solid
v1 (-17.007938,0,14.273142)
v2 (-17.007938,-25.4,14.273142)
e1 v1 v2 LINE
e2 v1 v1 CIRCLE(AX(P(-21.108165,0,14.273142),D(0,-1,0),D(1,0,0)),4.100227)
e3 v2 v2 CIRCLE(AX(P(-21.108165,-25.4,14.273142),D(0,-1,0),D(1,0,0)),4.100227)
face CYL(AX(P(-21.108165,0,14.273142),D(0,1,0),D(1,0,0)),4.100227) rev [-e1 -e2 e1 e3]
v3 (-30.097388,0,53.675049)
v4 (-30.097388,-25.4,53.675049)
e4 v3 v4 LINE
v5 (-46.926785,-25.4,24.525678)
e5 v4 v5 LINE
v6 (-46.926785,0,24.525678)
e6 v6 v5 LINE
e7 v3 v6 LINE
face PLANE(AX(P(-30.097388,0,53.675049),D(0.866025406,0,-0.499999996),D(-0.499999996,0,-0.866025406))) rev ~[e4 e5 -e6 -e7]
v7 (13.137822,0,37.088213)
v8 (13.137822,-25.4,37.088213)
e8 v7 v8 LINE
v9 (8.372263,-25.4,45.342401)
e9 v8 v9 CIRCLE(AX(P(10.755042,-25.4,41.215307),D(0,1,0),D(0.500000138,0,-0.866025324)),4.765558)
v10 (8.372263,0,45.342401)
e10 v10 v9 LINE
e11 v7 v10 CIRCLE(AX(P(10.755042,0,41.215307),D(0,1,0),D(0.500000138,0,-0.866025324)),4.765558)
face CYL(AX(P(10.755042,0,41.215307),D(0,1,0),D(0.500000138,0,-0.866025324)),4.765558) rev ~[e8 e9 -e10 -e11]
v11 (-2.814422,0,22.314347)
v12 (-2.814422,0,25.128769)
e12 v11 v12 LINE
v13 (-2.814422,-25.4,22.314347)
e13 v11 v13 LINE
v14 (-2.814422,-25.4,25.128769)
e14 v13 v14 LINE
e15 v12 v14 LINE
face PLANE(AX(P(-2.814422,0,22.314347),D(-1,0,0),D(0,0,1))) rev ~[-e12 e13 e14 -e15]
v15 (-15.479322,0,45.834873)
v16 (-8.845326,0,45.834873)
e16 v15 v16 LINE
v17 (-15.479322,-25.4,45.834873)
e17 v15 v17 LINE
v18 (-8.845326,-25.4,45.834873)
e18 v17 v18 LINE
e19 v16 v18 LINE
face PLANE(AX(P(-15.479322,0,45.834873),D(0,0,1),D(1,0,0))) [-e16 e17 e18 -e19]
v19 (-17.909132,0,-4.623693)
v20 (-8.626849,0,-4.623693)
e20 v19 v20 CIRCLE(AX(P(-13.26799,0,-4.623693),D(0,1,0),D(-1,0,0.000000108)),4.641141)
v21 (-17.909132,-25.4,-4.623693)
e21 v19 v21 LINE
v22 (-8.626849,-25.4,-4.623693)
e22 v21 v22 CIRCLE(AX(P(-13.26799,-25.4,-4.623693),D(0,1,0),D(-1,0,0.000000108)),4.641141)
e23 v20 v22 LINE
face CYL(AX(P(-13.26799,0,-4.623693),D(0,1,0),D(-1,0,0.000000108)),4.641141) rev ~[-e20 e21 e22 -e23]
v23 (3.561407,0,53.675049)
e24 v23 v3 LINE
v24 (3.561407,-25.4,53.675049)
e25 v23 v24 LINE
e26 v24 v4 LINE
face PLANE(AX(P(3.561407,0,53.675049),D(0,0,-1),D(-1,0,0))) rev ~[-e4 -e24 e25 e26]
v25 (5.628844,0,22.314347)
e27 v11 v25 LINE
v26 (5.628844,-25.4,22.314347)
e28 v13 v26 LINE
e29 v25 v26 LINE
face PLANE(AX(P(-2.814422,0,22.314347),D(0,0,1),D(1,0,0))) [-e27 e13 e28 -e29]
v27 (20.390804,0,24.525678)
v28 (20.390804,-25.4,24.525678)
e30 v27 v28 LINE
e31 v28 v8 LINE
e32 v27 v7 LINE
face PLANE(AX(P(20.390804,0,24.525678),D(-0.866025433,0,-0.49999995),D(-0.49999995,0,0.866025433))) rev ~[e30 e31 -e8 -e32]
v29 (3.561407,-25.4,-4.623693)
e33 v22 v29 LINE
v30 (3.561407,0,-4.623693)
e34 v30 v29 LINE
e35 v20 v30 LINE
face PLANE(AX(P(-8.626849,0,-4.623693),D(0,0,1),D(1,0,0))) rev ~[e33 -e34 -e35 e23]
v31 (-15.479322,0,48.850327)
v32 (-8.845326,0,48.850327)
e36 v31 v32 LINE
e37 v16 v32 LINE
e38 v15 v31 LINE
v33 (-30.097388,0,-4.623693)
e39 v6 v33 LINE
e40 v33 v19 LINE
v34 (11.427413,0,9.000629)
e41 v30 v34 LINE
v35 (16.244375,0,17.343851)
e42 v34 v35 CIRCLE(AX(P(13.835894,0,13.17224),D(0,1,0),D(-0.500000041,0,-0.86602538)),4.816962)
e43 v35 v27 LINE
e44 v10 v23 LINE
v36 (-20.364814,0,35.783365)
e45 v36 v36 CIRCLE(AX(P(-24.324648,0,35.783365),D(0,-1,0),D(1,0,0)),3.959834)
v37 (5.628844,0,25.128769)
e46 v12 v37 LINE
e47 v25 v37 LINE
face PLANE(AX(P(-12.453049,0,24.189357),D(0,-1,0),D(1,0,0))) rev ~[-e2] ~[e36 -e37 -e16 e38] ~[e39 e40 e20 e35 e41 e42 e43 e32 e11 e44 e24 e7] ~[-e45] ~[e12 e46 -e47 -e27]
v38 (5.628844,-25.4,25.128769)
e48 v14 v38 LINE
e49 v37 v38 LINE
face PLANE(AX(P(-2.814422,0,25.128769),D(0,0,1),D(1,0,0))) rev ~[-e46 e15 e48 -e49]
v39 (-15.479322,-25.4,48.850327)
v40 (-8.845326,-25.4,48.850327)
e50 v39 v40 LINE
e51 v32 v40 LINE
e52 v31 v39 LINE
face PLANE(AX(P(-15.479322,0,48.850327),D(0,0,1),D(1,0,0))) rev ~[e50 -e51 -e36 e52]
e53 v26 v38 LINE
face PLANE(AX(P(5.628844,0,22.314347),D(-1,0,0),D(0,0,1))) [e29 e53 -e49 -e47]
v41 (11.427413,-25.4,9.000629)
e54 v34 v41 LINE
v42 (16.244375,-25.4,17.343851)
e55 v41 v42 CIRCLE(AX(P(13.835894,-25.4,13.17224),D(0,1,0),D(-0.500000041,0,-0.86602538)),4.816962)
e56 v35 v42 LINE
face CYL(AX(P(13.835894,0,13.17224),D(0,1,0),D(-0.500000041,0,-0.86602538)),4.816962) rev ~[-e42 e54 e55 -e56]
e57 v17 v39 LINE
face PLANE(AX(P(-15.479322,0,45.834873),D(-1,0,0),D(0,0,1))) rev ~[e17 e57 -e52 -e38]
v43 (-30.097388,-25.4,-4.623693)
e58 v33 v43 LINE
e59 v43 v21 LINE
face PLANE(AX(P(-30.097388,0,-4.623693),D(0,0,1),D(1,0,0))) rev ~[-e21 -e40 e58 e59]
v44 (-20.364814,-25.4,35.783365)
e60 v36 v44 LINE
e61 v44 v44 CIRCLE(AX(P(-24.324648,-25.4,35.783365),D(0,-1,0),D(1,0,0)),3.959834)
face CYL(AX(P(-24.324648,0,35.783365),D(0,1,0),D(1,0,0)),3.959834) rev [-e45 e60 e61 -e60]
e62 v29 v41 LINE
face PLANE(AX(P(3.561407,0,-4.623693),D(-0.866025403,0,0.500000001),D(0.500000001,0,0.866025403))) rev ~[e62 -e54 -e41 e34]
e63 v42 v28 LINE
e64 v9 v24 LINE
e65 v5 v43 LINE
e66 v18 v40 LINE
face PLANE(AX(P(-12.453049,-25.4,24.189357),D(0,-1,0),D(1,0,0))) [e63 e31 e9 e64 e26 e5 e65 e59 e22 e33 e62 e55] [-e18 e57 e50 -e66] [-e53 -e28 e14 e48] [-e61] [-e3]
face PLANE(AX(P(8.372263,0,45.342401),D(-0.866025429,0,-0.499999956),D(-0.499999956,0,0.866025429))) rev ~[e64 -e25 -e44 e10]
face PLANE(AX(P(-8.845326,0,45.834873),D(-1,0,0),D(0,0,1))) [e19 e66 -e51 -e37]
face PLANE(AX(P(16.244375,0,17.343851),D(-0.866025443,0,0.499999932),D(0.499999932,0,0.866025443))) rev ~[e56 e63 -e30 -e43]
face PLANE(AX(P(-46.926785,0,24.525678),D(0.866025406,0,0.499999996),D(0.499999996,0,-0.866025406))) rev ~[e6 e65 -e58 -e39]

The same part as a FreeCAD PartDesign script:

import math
import FreeCAD as App
import Part
import Sketcher
from FreeCAD import Vector
Q = App.Units.Quantity

doc = App.newDocument("Part")
params = doc.addObject("Spreadsheet::Sheet", "Params")
for row, (alias, value) in enumerate([
    ("pad1_length", "1 in"),
], start=1):
    params.set(f"A{row}", alias)
    params.set(f"B{row}", "=" + value)
    params.setAlias(f"B{row}", alias)

body = doc.addObject("PartDesign::Body", "Body")

# Sketch on XZ plane
sketch1 = body.newObject("Sketcher::SketchObject", "Sketch")
sketch1.AttachmentSupport = (doc.getObject("XZ_Plane"), [""])
sketch1.MapMode = "FlatFace"
sketch1.addGeometry(Part.LineSegment(Vector(-8.6, -4.6, 0), Vector(3.6, -4.6, 0)), False)
sketch1.addGeometry(Part.LineSegment(Vector(3.6, -4.6, 0), Vector(11.4, 9, 0)), False)
sketch1.addGeometry(Part.ArcOfCircle(Part.Circle(Vector(13.8, 13.2, 0), Vector(0, 0, 1), 4.8), math.radians(60), math.radians(240)), False)
sketch1.addGeometry(Part.LineSegment(Vector(16.2, 17.3, 0), Vector(20.4, 24.5, 0)), False)
sketch1.addGeometry(Part.LineSegment(Vector(20.4, 24.5, 0), Vector(13.1, 37.1, 0)), False)
sketch1.addGeometry(Part.ArcOfCircle(Part.Circle(Vector(10.8, 41.2, 0), Vector(0, 0, 1), 4.8), math.radians(120), math.radians(300)), False)
sketch1.addGeometry(Part.LineSegment(Vector(8.4, 45.3, 0), Vector(3.6, 53.7, 0)), False)
sketch1.addGeometry(Part.LineSegment(Vector(3.6, 53.7, 0), Vector(-30.1, 53.7, 0)), False)
sketch1.addGeometry(Part.LineSegment(Vector(-30.1, 53.7, 0), Vector(-46.9, 24.5, 0)), False)
sketch1.addGeometry(Part.LineSegment(Vector(-46.9, 24.5, 0), Vector(-30.1, -4.6, 0)), False)
sketch1.addGeometry(Part.LineSegment(Vector(-30.1, -4.6, 0), Vector(-17.9, -4.6, 0)), False)
sketch1.addGeometry(Part.ArcOfCircle(Part.Circle(Vector(-13.3, -4.6, 0), Vector(0, 0, 1), 4.6), math.radians(0), math.radians(180)), False)
sketch1.addGeometry(Part.Circle(Vector(-21.1, 14.3, 0), Vector(0, 0, 1), 4.1), False)
sketch1.addGeometry(Part.LineSegment(Vector(5.6, 22.3, 0), Vector(-2.8, 22.3, 0)), False)
sketch1.addGeometry(Part.LineSegment(Vector(-2.8, 22.3, 0), Vector(-2.8, 25.1, 0)), False)
sketch1.addGeometry(Part.LineSegment(Vector(-2.8, 25.1, 0), Vector(5.6, 25.1, 0)), False)
sketch1.addGeometry(Part.LineSegment(Vector(5.6, 25.1, 0), Vector(5.6, 22.3, 0)), False)
sketch1.addGeometry(Part.Circle(Vector(-24.3, 35.8, 0), Vector(0, 0, 1), 4), False)
sketch1.addGeometry(Part.LineSegment(Vector(-8.8, 45.8, 0), Vector(-15.5, 45.8, 0)), False)
sketch1.addGeometry(Part.LineSegment(Vector(-15.5, 45.8, 0), Vector(-15.5, 48.9, 0)), False)
sketch1.addGeometry(Part.LineSegment(Vector(-15.5, 48.9, 0), Vector(-8.8, 48.9, 0)), False)
sketch1.addGeometry(Part.LineSegment(Vector(-8.8, 48.9, 0), Vector(-8.8, 45.8, 0)), False)
sketch1.addConstraint(Sketcher.Constraint("Coincident", 0, 2, 1, 1))
sketch1.addConstraint(Sketcher.Constraint("Coincident", 1, 2, 2, 2))
sketch1.addConstraint(Sketcher.Constraint("Coincident", 2, 1, 3, 1))
sketch1.addConstraint(Sketcher.Constraint("Coincident", 3, 2, 4, 1))
sketch1.addConstraint(Sketcher.Constraint("Coincident", 4, 2, 5, 2))
sketch1.addConstraint(Sketcher.Constraint("Coincident", 5, 1, 6, 1))
sketch1.addConstraint(Sketcher.Constraint("Coincident", 6, 2, 7, 1))
sketch1.addConstraint(Sketcher.Constraint("Coincident", 7, 2, 8, 1))
sketch1.addConstraint(Sketcher.Constraint("Coincident", 8, 2, 9, 1))
sketch1.addConstraint(Sketcher.Constraint("Coincident", 9, 2, 10, 1))
sketch1.addConstraint(Sketcher.Constraint("Coincident", 10, 2, 11, 2))
sketch1.addConstraint(Sketcher.Constraint("Coincident", 11, 1, 0, 1))
sketch1.addConstraint(Sketcher.Constraint("Coincident", 13, 2, 14, 1))
sketch1.addConstraint(Sketcher.Constraint("Coincident", 14, 2, 15, 1))
sketch1.addConstraint(Sketcher.Constraint("Coincident", 15, 2, 16, 1))
sketch1.addConstraint(Sketcher.Constraint("Coincident", 16, 2, 13, 1))
sketch1.addConstraint(Sketcher.Constraint("Coincident", 18, 2, 19, 1))
sketch1.addConstraint(Sketcher.Constraint("Coincident", 19, 2, 20, 1))
sketch1.addConstraint(Sketcher.Constraint("Coincident", 20, 2, 21, 1))
sketch1.addConstraint(Sketcher.Constraint("Coincident", 21, 2, 18, 1))
sketch1.addConstraint(Sketcher.Constraint("Horizontal", 0))
sketch1.addConstraint(Sketcher.Constraint("Horizontal", 7))
sketch1.addConstraint(Sketcher.Constraint("Horizontal", 10))
sketch1.addConstraint(Sketcher.Constraint("Horizontal", 13))
sketch1.addConstraint(Sketcher.Constraint("Vertical", 14))
sketch1.addConstraint(Sketcher.Constraint("Horizontal", 15))
sketch1.addConstraint(Sketcher.Constraint("Vertical", 16))
sketch1.addConstraint(Sketcher.Constraint("Horizontal", 18))
sketch1.addConstraint(Sketcher.Constraint("Vertical", 19))
sketch1.addConstraint(Sketcher.Constraint("Horizontal", 20))
sketch1.addConstraint(Sketcher.Constraint("Vertical", 21))
sketch1.addConstraint(Sketcher.Constraint("Parallel", 1, 3))
sketch1.addConstraint(Sketcher.Constraint("Parallel", 4, 6))
sketch1.addConstraint(Sketcher.Constraint("Parallel", 3, 8))
sketch1.addConstraint(Sketcher.Constraint("Parallel", 6, 9))
sketch1.addConstraint(Sketcher.Constraint("Horizontal", 11, 3, 0, 2))
sketch1.addConstraint(Sketcher.Constraint("Horizontal", 3, 2, 8, 2))
sketch1.addConstraint(Sketcher.Constraint("Horizontal", 0, 2, 9, 2))
sketch1.addConstraint(Sketcher.Constraint("Vertical", 0, 2, 6, 2))
sketch1.addConstraint(Sketcher.Constraint("Vertical", 7, 2, 9, 2))
sketch1.addConstraint(Sketcher.Constraint("Equal", 0, 10))
sketch1.addConstraint(Sketcher.Constraint("Equal", 8, 9))
sketch1.addConstraint(Sketcher.Constraint("Angle", 1, Q("60 deg")))
sketch1.addConstraint(Sketcher.Constraint("Radius", 2, 4.816962))
sketch1.addConstraint(Sketcher.Constraint("Radius", 11, 4.641141))
sketch1.addConstraint(Sketcher.Constraint("Diameter", 12, 8.200454))
sketch1.addConstraint(Sketcher.Constraint("Diameter", 17, 7.919668))
sketch1.addConstraint(Sketcher.Constraint("Radius", 5, 4.765558))
sketch1.addConstraint(Sketcher.Constraint("DistanceY", 14, 1, 14, 2, 2.814422))
sketch1.addConstraint(Sketcher.Constraint("DistanceY", -1, 1, 5, 1, 45.342401))
sketch1.addConstraint(Sketcher.Constraint("DistanceY", 11, 3, 5, 3, 45.839))
sketch1.addConstraint(Sketcher.Constraint("DistanceY", 2, 3, 12, 3, 1.100902))
sketch1.addConstraint(Sketcher.Constraint("DistanceX", 18, 2, 14, 2, 12.6649))
sketch1.addConstraint(Sketcher.Constraint("Distance", 1, 15.732012))
sketch1.addConstraint(Sketcher.Constraint("Distance", 3, 8.292859))
sketch1.addConstraint(Sketcher.Constraint("DistanceX", 0, 1, 0, 2, 12.188256))
sketch1.addConstraint(Sketcher.Constraint("DistanceX", 13, 2, 13, 1, 8.443266))
sketch1.addConstraint(Sketcher.Constraint("DistanceX", 18, 2, 18, 1, 6.633996))
sketch1.addConstraint(Sketcher.Constraint("DistanceY", 19, 1, 19, 2, 3.015455))
sketch1.addConstraint(Sketcher.Constraint("DistanceY", -1, 1, 2, 3, 13.17224))
sketch1.addConstraint(Sketcher.Constraint("DistanceX", 11, 3, -1, 1, 13.26799))
sketch1.addConstraint(Sketcher.Constraint("DistanceX", 17, 3, -1, 1, 24.324648))
sketch1.addConstraint(Sketcher.Constraint("DistanceY", -1, 1, 1, 2, 9.000629))
sketch1.addConstraint(Sketcher.Constraint("DistanceY", -1, 1, 2, 1, 17.343851))
sketch1.addConstraint(Sketcher.Constraint("DistanceX", 13, 2, -1, 1, 2.814422))
sketch1.addConstraint(Sketcher.Constraint("DistanceY", -1, 1, 14, 2, 25.128769))
sketch1.addConstraint(Sketcher.Constraint("DistanceX", 12, 3, 2, 3, 34.944059))
sketch1.addConstraint(Sketcher.Constraint("DistanceY", 17, 3, 5, 3, 5.431942))
sketch1.addConstraint(Sketcher.Constraint("DistanceY", 5, 1, 18, 2, 0.492472))
pad1 = body.newObject("PartDesign::Pad", "Pad")
pad1.Profile = sketch1
pad1.setExpression("Length", "Params.pad1_length")

doc.recompute()
